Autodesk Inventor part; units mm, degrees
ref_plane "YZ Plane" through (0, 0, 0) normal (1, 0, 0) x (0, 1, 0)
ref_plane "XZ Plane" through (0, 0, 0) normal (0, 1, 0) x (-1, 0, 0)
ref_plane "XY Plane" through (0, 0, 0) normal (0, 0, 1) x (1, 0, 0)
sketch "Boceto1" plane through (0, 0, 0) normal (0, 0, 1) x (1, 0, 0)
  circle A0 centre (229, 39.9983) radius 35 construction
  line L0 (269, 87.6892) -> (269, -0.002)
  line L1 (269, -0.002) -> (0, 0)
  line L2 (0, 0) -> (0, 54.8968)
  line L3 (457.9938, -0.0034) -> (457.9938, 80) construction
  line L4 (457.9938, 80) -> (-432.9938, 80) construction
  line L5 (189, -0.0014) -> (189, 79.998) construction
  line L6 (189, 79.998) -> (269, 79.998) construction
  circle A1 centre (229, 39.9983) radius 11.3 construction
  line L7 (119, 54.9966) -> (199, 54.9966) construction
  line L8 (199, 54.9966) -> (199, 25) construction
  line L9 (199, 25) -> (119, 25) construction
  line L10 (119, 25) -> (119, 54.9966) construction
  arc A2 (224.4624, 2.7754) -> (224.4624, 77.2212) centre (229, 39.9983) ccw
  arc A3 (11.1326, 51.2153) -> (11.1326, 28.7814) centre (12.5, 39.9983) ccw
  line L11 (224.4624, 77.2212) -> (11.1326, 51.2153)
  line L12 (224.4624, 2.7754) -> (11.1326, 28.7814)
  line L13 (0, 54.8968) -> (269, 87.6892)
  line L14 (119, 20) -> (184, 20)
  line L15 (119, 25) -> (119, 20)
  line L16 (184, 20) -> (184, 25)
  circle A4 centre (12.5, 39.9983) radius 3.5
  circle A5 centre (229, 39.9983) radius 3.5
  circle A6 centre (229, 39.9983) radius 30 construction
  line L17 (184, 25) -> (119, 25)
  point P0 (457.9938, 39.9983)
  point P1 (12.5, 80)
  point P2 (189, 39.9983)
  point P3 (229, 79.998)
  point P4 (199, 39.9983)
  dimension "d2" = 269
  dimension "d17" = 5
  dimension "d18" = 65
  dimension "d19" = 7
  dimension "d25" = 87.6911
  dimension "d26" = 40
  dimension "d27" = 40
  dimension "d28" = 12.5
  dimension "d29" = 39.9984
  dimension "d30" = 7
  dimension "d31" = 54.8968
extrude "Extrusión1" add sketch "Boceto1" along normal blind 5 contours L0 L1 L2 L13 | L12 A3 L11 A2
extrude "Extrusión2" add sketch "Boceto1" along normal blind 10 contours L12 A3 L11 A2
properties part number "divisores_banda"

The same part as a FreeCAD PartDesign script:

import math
import FreeCAD as App
import Part
import Sketcher

V = App.Vector
Q = App.Units.Quantity


def add_polygon(sketch, points):
    """Adds a closed chain of lines whose ends are joined by coincident constraints."""
    first, n = sketch.GeometryCount, len(points)
    for a, b in zip(points, points[1:] + points[:1]):
        sketch.addGeometry(Part.LineSegment(App.Vector(*a, 0), App.Vector(*b, 0)), False)
    for i in range(n):
        sketch.addConstraint(Sketcher.Constraint("Coincident", first + i, 2, first + (i + 1) % n, 1))

doc = App.newDocument("Part")
body = doc.addObject("PartDesign::Body", "Body")

# Sketch on XY plane
sketch1 = body.newObject("Sketcher::SketchObject", "Sketch")
sketch1.AttachmentSupport = (doc.getObject("XY_Plane"), [""])
sketch1.MapMode = "FlatFace"
add_polygon(sketch1, [(269, 0), (269, 87.7), (0, 54.9), (0, 0)])  # lines 0-3
add_polygon(sketch1, [(184, 25), (184, 20), (119, 20), (119, 25)])  # lines 4-7
sketch1.addGeometry(Part.Circle(V(229, 40, 0), V(0, 0, 1), 3.5), False)  # 8
sketch1.addGeometry(Part.Circle(V(12.5, 40, 0), V(0, 0, 1), 3.5), False)  # 9
sketch1.addConstraint(Sketcher.Constraint("Vertical", 0))
sketch1.addConstraint(Sketcher.Constraint("Vertical", 2))
sketch1.addConstraint(Sketcher.Constraint("Vertical", 4))
sketch1.addConstraint(Sketcher.Constraint("Horizontal", 5))
sketch1.addConstraint(Sketcher.Constraint("Vertical", 6))
sketch1.addConstraint(Sketcher.Constraint("Horizontal", 7))
sketch1.addConstraint(Sketcher.Constraint("Coincident", 2, 2, -1, 1))
sketch1.addConstraint(Sketcher.Constraint("Equal", 8, 9))
sketch1.addConstraint(Sketcher.Constraint("Horizontal", 8, 3, 9, 3))
sketch1.addConstraint(Sketcher.Constraint("Diameter", 8, 7.0))
sketch1.addConstraint(Sketcher.Constraint("DistanceX", 5, 2, 5, 1, 65.0))
sketch1.addConstraint(Sketcher.Constraint("DistanceY", 4, 2, 4, 1, 5.0))
sketch1.addConstraint(Sketcher.Constraint("Distance", 3, 269.0))
sketch1.addConstraint(Sketcher.Constraint("DistanceX", 8, 3, 0, 2, 40.0))
sketch1.addConstraint(Sketcher.Constraint("DistanceX", -1, 1, 9, 3, 12.5))
sketch1.addConstraint(Sketcher.Constraint("Angle", 3, Q("-0.0004 deg")))
sketch1.addConstraint(Sketcher.Constraint("DistanceY", 0, 1, 0, 2, 87.6912))
sketch1.addConstraint(Sketcher.Constraint("DistanceY", 2, 2, 2, 1, 54.8968))
sketch1.addConstraint(Sketcher.Constraint("DistanceX", -1, 1, 4, 2, 184.0))
sketch1.addConstraint(Sketcher.Constraint("DistanceY", -1, 1, 4, 2, 20.0))
sketch1.addConstraint(Sketcher.Constraint("DistanceY", -1, 1, 8, 3, 39.9983))
pad1 = body.newObject("PartDesign::Pad", "Pad")
pad1.Profile = sketch1
pad1.Length = 5

# Sketch on XY plane
sketch2 = body.newObject("Sketcher::SketchObject", "Sketch001")
sketch2.AttachmentSupport = (doc.getObject("XY_Plane"), [""])
sketch2.MapMode = "FlatFace"
sketch2.addGeometry(Part.LineSegment(V(11.1, 28.8, 0), V(224.5, 2.8, 0)), False)  # 0
sketch2.addGeometry(Part.ArcOfCircle(Part.Circle(V(229, 40, 0), V(0, 0, 1), 37.5), math.radians(-97), math.radians(97)), False)  # 1
sketch2.addGeometry(Part.LineSegment(V(224.5, 77.2, 0), V(11.1, 51.2, 0)), False)  # 2
sketch2.addGeometry(Part.ArcOfCircle(Part.Circle(V(12.5, 40, 0), V(0, 0, 1), 11.3), math.radians(97), math.radians(263)), False)  # 3
sketch2.addGeometry(Part.Circle(V(12.5, 40, 0), V(0, 0, 1), 3.5), False)  # 4
add_polygon(sketch2, [(184, 20), (119, 20), (119, 25), (184, 25)])  # lines 5-8
sketch2.addGeometry(Part.Circle(V(229, 40, 0), V(0, 0, 1), 3.5), False)  # 9
sketch2.addConstraint(Sketcher.Constraint("Tangent", 0, 2, 1, 1))
sketch2.addConstraint(Sketcher.Constraint("Tangent", 1, 2, 2, 1))
sketch2.addConstraint(Sketcher.Constraint("Tangent", 2, 2, 3, 1))
sketch2.addConstraint(Sketcher.Constraint("Tangent", 3, 2, 0, 1))
sketch2.addConstraint(Sketcher.Constraint("Horizontal", 5))
sketch2.addConstraint(Sketcher.Constraint("Vertical", 6))
sketch2.addConstraint(Sketcher.Constraint("Horizontal", 7))
sketch2.addConstraint(Sketcher.Constraint("Vertical", 8))
sketch2.addConstraint(Sketcher.Constraint("Coincident", 4, 3, 3, 3))
sketch2.addConstraint(Sketcher.Constraint("Coincident", 9, 3, 1, 3))
sketch2.addConstraint(Sketcher.Constraint("Equal", 4, 9))
sketch2.addConstraint(Sketcher.Constraint("Horizontal", 1, 3, 3, 3))
sketch2.addConstraint(Sketcher.Constraint("Diameter", 4, 7.0))
sketch2.addConstraint(Sketcher.Constraint("DistanceX", 5, 2, 5, 1, 65.0))
sketch2.addConstraint(Sketcher.Constraint("DistanceY", 6, 1, 6, 2, 5.0))
sketch2.addConstraint(Sketcher.Constraint("DistanceX", -1, 1, 3, 3, 12.5))
sketch2.addConstraint(Sketcher.Constraint("Radius", 3, 11.3))
sketch2.addConstraint(Sketcher.Constraint("DistanceX", -1, 1, 1, 3, 229.0))
sketch2.addConstraint(Sketcher.Constraint("DistanceX", -1, 1, 5, 2, 119.0))
sketch2.addConstraint(Sketcher.Constraint("DistanceY", -1, 1, 5, 2, 20.0))
sketch2.addConstraint(Sketcher.Constraint("DistanceY", -1, 1, 1, 3, 39.9983))
sketch2.addConstraint(Sketcher.Constraint("Angle", 0, Q("-6.9504 deg")))
pad2 = body.newObject("PartDesign::Pad", "Pad001")
pad2.Profile = sketch2
pad2.Length = 10

doc.recompute()
